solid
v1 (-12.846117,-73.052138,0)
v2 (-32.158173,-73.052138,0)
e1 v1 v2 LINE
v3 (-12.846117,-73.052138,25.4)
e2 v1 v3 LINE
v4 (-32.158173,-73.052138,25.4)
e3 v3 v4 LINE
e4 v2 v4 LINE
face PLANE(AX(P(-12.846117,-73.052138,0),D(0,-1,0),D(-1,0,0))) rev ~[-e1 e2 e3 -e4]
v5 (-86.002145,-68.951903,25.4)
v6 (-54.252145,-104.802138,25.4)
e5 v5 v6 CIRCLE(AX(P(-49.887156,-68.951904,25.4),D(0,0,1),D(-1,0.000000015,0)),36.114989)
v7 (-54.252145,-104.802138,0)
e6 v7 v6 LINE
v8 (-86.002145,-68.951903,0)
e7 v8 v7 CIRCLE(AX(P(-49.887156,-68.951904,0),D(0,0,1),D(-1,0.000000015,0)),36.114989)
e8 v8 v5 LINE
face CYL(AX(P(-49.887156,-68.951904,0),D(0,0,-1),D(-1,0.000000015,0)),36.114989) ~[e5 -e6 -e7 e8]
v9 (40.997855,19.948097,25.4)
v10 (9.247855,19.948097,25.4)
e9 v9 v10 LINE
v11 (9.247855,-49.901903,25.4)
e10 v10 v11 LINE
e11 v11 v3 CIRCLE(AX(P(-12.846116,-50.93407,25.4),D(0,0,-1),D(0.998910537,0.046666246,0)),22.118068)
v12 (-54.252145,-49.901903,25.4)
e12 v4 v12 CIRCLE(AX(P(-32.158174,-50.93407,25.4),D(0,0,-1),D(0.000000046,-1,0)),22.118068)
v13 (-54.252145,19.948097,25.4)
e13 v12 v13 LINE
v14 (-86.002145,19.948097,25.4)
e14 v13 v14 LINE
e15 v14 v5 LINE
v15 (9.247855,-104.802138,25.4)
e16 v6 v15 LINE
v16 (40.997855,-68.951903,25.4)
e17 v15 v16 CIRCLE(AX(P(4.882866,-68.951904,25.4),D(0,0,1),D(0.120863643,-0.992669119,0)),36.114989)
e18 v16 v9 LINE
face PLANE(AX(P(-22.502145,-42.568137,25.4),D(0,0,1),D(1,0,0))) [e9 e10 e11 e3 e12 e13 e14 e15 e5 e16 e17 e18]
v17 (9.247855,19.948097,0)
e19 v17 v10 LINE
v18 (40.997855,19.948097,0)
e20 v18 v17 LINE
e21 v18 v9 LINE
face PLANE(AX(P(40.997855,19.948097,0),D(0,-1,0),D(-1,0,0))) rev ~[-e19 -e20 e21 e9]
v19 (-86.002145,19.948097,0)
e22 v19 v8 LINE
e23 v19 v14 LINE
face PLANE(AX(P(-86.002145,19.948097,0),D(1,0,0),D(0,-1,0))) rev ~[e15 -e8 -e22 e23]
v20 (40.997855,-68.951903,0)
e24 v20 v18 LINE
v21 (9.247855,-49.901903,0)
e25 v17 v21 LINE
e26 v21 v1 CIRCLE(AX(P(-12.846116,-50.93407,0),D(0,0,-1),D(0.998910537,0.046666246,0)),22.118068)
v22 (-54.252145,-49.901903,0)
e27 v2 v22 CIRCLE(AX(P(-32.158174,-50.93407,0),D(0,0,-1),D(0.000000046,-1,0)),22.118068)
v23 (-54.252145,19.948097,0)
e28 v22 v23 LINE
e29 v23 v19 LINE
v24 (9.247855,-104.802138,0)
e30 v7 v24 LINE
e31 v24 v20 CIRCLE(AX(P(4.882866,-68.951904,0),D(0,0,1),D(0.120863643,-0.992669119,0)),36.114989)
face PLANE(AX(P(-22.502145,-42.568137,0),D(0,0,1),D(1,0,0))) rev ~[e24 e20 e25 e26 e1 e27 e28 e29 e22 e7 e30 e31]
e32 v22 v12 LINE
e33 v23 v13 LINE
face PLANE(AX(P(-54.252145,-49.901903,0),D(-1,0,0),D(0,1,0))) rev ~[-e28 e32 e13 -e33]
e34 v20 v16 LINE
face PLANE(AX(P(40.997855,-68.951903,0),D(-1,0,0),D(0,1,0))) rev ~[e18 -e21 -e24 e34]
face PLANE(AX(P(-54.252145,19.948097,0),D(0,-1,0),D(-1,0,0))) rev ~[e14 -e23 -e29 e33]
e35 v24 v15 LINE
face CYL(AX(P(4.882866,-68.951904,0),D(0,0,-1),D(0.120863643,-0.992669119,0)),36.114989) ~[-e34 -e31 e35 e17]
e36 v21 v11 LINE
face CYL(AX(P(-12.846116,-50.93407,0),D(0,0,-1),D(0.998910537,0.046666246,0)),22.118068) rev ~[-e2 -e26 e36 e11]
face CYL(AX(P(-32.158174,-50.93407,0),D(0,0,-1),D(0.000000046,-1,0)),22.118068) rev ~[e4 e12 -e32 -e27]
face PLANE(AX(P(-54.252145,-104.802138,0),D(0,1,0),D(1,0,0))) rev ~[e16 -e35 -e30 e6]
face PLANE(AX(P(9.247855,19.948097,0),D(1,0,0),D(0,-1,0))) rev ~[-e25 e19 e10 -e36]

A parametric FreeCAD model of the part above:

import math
import FreeCAD as App
import Part
import Sketcher
from FreeCAD import Vector
Q = App.Units.Quantity

doc = App.newDocument("Part")
body = doc.addObject("PartDesign::Body", "Body")

# Sketch on XY plane
sketch1 = body.newObject("Sketcher::SketchObject", "Sketch")
sketch1.AttachmentSupport = (doc.getObject("XY_Plane"), [""])
sketch1.MapMode = "FlatFace"
sketch1.addGeometry([
    Part.LineSegment(Vector(-13, -73, 0), Vector(-32, -73, 0)),  # 0
    Part.ArcOfCircle(Part.Circle(Vector(-32, -51, 0), Vector(0, 0, 1), 22), math.radians(177), math.radians(270)),  # 1
    Part.LineSegment(Vector(-54, -50, 0), Vector(-54, 20, 0)),  # 2
    Part.LineSegment(Vector(-54, 20, 0), Vector(-86, 20, 0)),  # 3
    Part.LineSegment(Vector(-86, 20, 0), Vector(-86, -69, 0)),  # 4
    Part.ArcOfCircle(Part.Circle(Vector(-50, -69, 0), Vector(0, 0, 1), 36), math.radians(180), math.radians(263)),  # 5
    Part.LineSegment(Vector(-54, -105, 0), Vector(9, -105, 0)),  # 6
    Part.ArcOfCircle(Part.Circle(Vector(5, -69, 0), Vector(0, 0, 1), 36), math.radians(-83), math.radians(0)),  # 7
    Part.LineSegment(Vector(41, -69, 0), Vector(41, 20, 0)),  # 8
    Part.LineSegment(Vector(41, 20, 0), Vector(9, 20, 0)),  # 9
    Part.LineSegment(Vector(9, 20, 0), Vector(9, -50, 0)),  # 10
    Part.ArcOfCircle(Part.Circle(Vector(-13, -51, 0), Vector(0, 0, 1), 22), math.radians(-90), math.radians(3)),  # 11
], False)
sketch1.addConstraint([
    Sketcher.Constraint("Tangent", 0, 2, 1, 2),
    Sketcher.Constraint("Coincident", 1, 1, 2, 1),
    Sketcher.Constraint("Coincident", 2, 2, 3, 1),
    Sketcher.Constraint("Coincident", 3, 2, 4, 1),
    Sketcher.Constraint("Tangent", 4, 2, 5, 1),
    Sketcher.Constraint("Coincident", 5, 2, 6, 1),
    Sketcher.Constraint("Coincident", 6, 2, 7, 1),
    Sketcher.Constraint("Tangent", 7, 2, 8, 1),
    Sketcher.Constraint("Coincident", 8, 2, 9, 1),
    Sketcher.Constraint("Coincident", 9, 2, 10, 1),
    Sketcher.Constraint("Coincident", 10, 2, 11, 2),
    Sketcher.Constraint("Tangent", 11, 1, 0, 1),
    Sketcher.Constraint("Horizontal", 0),
    Sketcher.Constraint("Vertical", 2),
    Sketcher.Constraint("Horizontal", 3),
    Sketcher.Constraint("Vertical", 4),
    Sketcher.Constraint("Horizontal", 6),
    Sketcher.Constraint("Vertical", 8),
    Sketcher.Constraint("Horizontal", 9),
    Sketcher.Constraint("Vertical", 10),
    Sketcher.Constraint("Equal", 5, 7),
    Sketcher.Constraint("Equal", 1, 11),
    Sketcher.Constraint("Horizontal", 5, 3, 7, 3),
    Sketcher.Constraint("Horizontal", 3, 2, 8, 2),
    Sketcher.Constraint("Horizontal", 1, 1, 10, 2),
    Sketcher.Constraint("Vertical", 2, 2, 5, 2),
    Sketcher.Constraint("Vertical", 6, 2, 9, 2),
    Sketcher.Constraint("DistanceX", 6, 1, 6, 2, Q("2.5 in")),
    Sketcher.Constraint("DistanceY", 4, 2, 4, 1, Q("3.5 in")),
    Sketcher.Constraint("DistanceX", 3, 2, 3, 1, Q("1.25 in")),
    Sketcher.Constraint("DistanceY", 2, 1, 2, 2, Q("2.75 in")),
    Sketcher.Constraint("DistanceY", 5, 2, 0, 2, Q("1.25 in")),
    Sketcher.Constraint("Radius", 5, Q("36.114989 mm")),
    Sketcher.Constraint("Radius", 1, Q("22.118068 mm")),
    Sketcher.Constraint("DistanceY", 1, 3, -1, 1, Q("50.93407 mm")),
    Sketcher.Constraint("DistanceX", 1, 3, -1, 1, Q("32.158174 mm")),
])
pad1 = body.newObject("PartDesign::Pad", "Pad")
pad1.Profile = sketch1
pad1.Length = Q("1 in")

doc.recompute()
